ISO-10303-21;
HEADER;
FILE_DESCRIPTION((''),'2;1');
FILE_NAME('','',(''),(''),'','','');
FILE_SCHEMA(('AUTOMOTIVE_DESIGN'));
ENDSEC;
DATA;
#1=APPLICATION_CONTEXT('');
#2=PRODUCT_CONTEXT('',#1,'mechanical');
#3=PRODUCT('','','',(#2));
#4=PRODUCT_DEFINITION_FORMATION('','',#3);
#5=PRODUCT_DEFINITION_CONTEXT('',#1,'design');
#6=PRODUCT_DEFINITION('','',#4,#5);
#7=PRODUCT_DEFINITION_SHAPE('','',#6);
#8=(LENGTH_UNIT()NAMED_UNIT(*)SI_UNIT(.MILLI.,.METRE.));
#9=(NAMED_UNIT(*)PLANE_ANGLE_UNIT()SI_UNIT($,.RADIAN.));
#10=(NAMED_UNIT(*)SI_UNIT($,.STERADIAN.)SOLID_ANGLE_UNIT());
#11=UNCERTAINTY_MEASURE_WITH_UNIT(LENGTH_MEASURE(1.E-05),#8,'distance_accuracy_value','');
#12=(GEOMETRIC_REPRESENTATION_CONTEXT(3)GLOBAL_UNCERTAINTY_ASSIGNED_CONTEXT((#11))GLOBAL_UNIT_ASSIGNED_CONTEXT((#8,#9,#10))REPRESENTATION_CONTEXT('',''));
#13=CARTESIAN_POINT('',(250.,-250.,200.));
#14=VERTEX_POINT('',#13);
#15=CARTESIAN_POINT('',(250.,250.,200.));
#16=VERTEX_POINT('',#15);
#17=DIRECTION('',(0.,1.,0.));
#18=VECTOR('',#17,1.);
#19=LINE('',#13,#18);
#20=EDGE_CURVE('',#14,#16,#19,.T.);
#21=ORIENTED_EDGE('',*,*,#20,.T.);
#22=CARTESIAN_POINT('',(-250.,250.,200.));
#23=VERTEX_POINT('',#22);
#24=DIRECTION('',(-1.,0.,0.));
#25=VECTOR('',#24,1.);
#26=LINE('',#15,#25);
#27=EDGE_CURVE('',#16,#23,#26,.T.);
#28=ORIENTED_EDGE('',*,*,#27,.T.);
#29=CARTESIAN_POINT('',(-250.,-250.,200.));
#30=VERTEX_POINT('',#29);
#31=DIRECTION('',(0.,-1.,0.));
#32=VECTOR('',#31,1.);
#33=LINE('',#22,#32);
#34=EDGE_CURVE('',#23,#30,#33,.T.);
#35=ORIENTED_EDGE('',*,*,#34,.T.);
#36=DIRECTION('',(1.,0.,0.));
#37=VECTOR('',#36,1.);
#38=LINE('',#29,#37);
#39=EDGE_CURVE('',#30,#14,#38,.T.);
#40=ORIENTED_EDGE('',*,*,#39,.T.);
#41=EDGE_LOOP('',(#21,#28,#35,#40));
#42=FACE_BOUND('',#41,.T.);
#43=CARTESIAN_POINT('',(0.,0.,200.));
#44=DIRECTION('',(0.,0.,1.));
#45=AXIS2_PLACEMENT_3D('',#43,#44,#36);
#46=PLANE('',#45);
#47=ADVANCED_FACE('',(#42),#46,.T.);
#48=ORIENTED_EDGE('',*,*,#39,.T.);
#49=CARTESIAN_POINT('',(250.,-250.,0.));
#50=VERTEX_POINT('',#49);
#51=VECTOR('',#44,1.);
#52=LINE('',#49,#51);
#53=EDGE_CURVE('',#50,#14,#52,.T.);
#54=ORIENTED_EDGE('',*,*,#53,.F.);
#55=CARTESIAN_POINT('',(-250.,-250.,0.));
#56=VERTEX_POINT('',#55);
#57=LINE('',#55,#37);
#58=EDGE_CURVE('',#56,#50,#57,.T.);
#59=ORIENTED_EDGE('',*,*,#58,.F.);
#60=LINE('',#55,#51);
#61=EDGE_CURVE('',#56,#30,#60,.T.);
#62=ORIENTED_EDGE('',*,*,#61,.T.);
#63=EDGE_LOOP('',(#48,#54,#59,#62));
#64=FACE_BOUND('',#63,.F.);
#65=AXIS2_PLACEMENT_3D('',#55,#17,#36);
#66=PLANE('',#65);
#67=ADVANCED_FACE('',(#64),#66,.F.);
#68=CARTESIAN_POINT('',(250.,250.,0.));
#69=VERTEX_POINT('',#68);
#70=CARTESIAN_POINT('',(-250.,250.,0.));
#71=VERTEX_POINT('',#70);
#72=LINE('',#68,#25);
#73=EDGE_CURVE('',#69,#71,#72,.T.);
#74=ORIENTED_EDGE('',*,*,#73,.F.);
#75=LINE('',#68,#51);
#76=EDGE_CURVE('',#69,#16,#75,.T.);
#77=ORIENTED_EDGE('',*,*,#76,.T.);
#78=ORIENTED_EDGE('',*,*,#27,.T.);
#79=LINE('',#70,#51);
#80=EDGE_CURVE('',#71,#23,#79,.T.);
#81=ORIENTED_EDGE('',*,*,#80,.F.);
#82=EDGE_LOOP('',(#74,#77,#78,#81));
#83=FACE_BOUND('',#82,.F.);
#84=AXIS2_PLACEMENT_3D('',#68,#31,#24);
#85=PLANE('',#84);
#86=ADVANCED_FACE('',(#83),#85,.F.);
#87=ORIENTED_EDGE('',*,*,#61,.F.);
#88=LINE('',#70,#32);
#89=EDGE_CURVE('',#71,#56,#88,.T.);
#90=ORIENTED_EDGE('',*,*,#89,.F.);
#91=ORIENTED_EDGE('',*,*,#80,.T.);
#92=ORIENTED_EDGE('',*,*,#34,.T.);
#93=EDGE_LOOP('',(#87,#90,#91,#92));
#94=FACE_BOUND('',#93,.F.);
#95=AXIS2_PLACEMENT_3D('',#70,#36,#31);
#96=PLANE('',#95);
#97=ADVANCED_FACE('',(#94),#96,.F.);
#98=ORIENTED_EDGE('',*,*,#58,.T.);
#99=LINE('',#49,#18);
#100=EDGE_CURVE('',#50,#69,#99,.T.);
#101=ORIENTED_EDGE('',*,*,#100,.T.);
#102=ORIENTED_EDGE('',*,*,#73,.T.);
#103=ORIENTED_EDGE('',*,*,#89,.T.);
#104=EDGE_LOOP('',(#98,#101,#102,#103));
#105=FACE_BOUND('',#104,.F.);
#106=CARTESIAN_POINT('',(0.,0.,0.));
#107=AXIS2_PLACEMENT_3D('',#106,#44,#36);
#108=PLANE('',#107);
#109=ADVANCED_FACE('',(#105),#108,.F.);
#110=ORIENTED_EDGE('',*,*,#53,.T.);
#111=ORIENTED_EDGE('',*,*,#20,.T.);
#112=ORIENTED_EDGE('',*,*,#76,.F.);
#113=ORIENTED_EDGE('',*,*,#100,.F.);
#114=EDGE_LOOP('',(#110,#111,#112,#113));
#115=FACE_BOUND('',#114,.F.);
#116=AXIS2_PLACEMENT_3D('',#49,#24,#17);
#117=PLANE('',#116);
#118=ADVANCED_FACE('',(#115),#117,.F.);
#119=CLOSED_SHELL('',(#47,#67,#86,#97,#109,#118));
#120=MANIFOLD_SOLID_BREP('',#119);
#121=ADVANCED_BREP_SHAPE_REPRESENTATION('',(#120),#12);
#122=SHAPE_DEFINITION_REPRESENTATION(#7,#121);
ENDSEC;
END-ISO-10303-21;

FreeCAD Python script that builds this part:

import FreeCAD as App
import Part
import Sketcher
from FreeCAD import Vector
Q = App.Units.Quantity


def add_polygon(sketch, points):
    """Adds a closed chain of lines whose ends are joined by coincident constraints."""
    first, n = sketch.GeometryCount, len(points)
    for a, b in zip(points, points[1:] + points[:1]):
        sketch.addGeometry(Part.LineSegment(App.Vector(*a, 0), App.Vector(*b, 0)), False)
    for i in range(n):
        sketch.addConstraint(Sketcher.Constraint("Coincident", first + i, 2, first + (i + 1) % n, 1))

doc = App.newDocument("Part")
body = doc.addObject("PartDesign::Body", "Body")

sketch1 = body.newObject("Sketcher::SketchObject", "Sketch")
sketch1.AttachmentSupport = (doc.getObject("XY_Plane"), [""])
sketch1.MapMode = "FlatFace"
add_polygon(sketch1, [(-250, -250), (250, -250), (250, 250), (-250, 250)])
sketch1.addConstraint(Sketcher.Constraint("Horizontal", 0))
sketch1.addConstraint(Sketcher.Constraint("Vertical", 1))
sketch1.addConstraint(Sketcher.Constraint("Horizontal", 2))
sketch1.addConstraint(Sketcher.Constraint("Vertical", 3))
sketch1.addConstraint(Sketcher.Constraint("Symmetric", 0, 2, 2, 2, -1, 1))
sketch1.addConstraint(Sketcher.Constraint("Equal", 2, 1))
sketch1.addConstraint(Sketcher.Constraint("DistanceX", 0, 1, 0, 2, Q("500 mm")))
pad1 = body.newObject("PartDesign::Pad", "Pad")
pad1.Profile = sketch1
pad1.Length = 200

doc.recompute()
